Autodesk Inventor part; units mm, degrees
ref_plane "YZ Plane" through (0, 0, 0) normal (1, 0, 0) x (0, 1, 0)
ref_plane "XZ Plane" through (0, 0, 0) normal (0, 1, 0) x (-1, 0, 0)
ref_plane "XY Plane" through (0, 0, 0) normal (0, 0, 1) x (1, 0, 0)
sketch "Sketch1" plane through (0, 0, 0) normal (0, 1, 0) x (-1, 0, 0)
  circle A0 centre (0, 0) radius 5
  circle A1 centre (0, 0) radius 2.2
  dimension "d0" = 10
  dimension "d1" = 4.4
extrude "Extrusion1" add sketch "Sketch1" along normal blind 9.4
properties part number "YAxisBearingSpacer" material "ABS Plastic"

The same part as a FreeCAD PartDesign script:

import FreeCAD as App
import Part
import Sketcher

V = App.Vector
Q = App.Units.Quantity

doc = App.newDocument("Part")
body = doc.addObject("PartDesign::Body", "Body")

# Sketch on XZ plane
sketch1 = body.newObject("Sketcher::SketchObject", "Sketch")
sketch1.AttachmentSupport = (doc.getObject("XZ_Plane"), [""])
sketch1.MapMode = "FlatFace"
sketch1.addGeometry(Part.Circle(V(0, 0, 0), V(0, 0, 1), 5), False)
sketch1.addGeometry(Part.Circle(V(0, 0, 0), V(0, 0, 1), 2.2), False)
sketch1.addConstraint(Sketcher.Constraint("Coincident", 0, 3, -1, 1))
sketch1.addConstraint(Sketcher.Constraint("Coincident", 1, 3, -1, 1))
sketch1.addConstraint(Sketcher.Constraint("Diameter", 0, Q("10 mm")))
sketch1.addConstraint(Sketcher.Constraint("Diameter", 1, Q("4.4 mm")))
pad1 = body.newObject("PartDesign::Pad", "Pad")
pad1.Profile = sketch1
pad1.Length = 9.4
pad1.Reversed = True

doc.recompute()
